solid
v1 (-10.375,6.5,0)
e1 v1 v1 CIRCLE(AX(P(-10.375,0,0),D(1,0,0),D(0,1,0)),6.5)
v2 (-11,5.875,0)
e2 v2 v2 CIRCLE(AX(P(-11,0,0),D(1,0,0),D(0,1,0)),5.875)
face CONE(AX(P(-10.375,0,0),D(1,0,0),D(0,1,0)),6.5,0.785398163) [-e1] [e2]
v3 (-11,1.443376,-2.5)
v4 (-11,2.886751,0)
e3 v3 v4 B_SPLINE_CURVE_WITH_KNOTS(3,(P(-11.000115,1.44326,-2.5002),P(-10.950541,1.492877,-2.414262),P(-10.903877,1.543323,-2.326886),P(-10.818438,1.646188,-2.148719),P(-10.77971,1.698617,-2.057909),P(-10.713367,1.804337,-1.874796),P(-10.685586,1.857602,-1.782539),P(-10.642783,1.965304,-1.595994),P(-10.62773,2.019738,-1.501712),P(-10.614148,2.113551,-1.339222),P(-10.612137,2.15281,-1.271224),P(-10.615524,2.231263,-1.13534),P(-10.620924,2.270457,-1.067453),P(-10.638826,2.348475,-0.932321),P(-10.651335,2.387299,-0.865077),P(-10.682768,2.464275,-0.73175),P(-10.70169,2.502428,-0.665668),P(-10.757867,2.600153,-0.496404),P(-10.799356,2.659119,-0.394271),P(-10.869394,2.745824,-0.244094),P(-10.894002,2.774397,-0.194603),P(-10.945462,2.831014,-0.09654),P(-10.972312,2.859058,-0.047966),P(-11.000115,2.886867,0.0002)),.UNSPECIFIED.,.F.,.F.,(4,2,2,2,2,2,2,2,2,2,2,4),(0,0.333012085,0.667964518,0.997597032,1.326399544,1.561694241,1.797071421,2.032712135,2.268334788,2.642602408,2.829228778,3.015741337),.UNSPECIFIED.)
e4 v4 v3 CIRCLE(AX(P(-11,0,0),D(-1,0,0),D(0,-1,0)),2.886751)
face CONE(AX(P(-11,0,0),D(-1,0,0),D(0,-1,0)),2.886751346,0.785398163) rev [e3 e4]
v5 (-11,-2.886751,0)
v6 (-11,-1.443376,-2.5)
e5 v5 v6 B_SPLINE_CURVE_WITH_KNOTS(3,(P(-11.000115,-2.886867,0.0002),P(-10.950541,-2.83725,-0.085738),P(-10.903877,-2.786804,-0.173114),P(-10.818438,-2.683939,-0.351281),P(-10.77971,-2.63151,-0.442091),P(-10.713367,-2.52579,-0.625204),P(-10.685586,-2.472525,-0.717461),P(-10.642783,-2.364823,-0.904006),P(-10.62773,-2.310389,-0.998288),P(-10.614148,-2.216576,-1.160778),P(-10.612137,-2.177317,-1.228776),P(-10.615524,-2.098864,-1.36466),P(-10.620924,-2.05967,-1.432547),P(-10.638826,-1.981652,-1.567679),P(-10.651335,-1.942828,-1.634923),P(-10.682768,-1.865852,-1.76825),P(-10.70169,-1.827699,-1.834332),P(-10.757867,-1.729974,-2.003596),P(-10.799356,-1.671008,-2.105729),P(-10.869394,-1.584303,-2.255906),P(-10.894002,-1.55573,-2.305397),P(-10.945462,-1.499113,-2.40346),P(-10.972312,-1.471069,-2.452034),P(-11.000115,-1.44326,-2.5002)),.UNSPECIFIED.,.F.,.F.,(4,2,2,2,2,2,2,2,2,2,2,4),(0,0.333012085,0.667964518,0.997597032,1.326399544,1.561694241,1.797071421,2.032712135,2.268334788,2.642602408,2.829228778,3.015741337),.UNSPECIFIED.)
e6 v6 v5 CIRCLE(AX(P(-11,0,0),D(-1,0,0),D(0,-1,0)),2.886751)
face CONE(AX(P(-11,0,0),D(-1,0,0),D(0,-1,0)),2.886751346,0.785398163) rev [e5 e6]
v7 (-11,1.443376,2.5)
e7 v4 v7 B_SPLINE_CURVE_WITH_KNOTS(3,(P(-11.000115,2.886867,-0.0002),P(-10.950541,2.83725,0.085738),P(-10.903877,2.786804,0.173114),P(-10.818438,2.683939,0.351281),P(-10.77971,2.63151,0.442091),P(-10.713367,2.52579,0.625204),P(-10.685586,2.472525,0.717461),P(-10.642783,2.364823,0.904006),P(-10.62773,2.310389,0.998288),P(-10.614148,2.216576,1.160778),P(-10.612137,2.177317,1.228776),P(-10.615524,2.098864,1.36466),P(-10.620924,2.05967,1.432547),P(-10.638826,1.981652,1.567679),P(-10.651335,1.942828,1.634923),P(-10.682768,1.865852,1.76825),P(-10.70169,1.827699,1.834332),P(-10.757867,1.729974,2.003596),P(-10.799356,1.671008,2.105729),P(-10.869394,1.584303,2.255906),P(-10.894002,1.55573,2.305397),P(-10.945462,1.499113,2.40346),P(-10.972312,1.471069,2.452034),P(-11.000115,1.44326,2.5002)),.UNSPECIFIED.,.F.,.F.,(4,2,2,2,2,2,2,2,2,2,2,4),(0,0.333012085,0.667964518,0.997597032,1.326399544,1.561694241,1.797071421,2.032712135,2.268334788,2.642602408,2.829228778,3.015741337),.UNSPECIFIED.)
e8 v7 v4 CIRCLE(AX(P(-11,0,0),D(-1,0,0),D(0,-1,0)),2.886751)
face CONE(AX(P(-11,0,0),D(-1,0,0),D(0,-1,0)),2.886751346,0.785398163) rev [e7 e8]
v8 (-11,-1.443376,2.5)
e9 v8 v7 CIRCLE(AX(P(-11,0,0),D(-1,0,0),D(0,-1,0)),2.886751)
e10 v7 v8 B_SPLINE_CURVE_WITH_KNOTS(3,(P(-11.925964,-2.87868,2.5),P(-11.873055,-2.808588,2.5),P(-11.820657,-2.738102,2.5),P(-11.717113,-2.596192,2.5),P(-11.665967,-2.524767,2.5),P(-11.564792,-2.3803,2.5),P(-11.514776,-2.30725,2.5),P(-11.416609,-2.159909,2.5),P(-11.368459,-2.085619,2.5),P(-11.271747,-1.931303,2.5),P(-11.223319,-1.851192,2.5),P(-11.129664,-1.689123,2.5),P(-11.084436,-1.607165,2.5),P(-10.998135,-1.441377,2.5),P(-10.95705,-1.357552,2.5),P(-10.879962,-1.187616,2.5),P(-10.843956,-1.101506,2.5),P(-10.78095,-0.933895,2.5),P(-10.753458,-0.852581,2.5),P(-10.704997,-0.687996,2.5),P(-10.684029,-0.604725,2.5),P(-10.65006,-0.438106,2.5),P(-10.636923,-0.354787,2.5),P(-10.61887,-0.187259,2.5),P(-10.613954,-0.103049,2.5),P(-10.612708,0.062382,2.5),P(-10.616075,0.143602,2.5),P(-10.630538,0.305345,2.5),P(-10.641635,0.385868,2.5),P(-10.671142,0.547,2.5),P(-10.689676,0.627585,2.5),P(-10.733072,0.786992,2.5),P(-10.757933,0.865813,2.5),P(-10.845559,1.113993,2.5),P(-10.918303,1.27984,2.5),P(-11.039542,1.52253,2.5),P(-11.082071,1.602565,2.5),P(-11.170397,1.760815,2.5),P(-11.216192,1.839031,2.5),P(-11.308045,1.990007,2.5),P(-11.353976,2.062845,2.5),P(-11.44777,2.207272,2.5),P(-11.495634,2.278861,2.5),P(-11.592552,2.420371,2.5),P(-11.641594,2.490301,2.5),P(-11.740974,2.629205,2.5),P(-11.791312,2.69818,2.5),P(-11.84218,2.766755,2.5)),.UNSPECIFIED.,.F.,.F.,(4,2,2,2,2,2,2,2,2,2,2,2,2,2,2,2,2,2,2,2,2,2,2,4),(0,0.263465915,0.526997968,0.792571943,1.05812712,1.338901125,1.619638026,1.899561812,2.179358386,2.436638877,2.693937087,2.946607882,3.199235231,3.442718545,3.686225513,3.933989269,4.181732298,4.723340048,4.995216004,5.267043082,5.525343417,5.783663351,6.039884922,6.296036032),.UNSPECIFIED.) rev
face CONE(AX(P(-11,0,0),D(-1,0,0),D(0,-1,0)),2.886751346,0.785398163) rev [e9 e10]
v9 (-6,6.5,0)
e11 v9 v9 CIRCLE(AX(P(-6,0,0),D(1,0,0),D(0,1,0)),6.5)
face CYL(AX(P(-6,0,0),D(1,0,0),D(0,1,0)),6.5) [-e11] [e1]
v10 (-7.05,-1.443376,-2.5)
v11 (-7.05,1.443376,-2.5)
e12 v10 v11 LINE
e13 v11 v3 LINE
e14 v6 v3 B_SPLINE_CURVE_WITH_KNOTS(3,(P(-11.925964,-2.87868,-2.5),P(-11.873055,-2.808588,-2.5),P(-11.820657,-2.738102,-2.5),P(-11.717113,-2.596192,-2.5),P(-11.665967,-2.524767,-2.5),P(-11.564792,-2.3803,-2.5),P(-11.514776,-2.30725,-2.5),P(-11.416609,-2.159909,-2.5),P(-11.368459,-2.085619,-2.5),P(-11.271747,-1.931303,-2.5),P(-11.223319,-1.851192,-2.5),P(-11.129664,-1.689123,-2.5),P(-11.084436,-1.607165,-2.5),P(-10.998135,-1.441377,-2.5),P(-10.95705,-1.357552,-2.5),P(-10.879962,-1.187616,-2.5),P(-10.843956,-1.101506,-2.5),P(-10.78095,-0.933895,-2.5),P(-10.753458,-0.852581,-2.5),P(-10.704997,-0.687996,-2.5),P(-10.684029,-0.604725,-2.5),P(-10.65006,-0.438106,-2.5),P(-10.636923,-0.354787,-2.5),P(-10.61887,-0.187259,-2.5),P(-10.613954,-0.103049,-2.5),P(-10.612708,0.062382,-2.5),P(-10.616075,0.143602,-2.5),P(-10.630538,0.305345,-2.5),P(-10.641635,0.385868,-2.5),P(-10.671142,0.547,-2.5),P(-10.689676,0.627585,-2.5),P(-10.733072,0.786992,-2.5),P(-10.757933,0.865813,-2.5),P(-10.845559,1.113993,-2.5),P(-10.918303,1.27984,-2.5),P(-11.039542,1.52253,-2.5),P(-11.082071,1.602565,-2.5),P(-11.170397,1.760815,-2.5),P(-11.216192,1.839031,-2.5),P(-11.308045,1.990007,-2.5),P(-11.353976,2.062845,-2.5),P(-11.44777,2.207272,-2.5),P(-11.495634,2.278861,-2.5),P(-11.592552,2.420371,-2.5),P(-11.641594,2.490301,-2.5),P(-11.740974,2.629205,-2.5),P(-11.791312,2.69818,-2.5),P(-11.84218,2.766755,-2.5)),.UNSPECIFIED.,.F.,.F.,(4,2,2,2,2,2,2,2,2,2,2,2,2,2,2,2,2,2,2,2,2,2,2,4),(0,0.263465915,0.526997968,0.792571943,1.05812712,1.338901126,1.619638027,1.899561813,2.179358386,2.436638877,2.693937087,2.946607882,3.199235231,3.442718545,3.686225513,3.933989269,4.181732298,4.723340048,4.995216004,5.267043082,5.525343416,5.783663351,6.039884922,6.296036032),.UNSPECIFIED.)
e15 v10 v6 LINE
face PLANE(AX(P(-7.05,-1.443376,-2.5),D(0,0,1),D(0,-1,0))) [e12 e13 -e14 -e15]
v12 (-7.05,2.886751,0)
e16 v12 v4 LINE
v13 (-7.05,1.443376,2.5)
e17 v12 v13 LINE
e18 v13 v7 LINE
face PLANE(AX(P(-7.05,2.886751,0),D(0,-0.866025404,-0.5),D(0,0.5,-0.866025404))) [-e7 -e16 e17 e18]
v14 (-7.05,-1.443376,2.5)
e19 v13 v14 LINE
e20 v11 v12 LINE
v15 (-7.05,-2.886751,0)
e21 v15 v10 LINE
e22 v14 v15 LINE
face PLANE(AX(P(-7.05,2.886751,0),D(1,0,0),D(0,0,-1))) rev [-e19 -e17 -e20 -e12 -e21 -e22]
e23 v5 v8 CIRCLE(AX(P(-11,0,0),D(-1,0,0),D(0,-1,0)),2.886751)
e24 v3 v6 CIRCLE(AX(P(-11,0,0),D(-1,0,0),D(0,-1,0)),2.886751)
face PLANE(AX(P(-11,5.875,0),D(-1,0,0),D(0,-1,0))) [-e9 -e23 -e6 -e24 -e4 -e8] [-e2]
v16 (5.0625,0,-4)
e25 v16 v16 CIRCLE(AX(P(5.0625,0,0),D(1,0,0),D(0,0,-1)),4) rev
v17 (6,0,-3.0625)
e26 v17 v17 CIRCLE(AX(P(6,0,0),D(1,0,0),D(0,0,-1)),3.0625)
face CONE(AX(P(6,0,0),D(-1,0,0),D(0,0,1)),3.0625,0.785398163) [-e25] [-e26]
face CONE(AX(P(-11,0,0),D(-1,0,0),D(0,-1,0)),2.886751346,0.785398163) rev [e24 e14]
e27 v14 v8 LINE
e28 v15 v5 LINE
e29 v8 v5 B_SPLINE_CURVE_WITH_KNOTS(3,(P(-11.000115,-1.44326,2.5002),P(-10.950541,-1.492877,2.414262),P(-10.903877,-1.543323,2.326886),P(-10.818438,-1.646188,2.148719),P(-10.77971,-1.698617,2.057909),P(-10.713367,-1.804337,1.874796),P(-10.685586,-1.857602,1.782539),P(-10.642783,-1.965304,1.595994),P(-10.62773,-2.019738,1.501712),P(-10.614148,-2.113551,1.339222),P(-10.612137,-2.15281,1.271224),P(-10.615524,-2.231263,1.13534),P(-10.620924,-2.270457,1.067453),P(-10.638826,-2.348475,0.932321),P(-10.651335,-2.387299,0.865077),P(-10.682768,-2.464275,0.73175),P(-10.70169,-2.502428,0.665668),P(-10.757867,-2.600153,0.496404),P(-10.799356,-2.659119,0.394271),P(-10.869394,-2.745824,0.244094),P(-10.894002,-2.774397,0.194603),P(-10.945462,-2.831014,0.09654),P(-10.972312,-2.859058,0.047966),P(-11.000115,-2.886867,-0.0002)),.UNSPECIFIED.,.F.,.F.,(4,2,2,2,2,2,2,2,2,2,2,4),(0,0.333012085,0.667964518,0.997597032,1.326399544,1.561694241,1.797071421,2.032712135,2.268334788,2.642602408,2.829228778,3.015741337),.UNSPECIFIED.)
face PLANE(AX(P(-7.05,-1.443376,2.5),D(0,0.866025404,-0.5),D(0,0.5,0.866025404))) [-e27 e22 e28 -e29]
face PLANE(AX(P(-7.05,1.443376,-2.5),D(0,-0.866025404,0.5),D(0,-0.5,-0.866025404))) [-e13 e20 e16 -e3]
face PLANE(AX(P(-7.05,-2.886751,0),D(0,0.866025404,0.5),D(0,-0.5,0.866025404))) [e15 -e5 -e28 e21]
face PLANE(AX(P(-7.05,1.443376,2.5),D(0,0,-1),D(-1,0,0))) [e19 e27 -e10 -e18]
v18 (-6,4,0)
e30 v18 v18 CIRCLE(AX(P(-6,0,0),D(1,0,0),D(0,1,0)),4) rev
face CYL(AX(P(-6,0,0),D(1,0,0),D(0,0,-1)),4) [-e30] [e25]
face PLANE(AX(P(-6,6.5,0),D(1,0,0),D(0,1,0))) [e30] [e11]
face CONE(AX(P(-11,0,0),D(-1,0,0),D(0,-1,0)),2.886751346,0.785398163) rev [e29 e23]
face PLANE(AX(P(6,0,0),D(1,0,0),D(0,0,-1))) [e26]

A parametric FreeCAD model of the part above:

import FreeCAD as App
import Part
import Sketcher
Q = App.Units.Quantity


def edges_at(feature, points):
    """Names of the edges that pass closest to the given points."""
    edges = feature.Shape.Edges
    near = lambda p: min(range(len(edges)), key=lambda i: edges[i].distToShape(Part.Vertex(*p))[0])
    return sorted({f"Edge{near(p) + 1}" for p in points})

doc = App.newDocument("Part")
body = doc.addObject("PartDesign::Body", "Body")

# Sketch on YZ plane
sketch1 = body.newObject("Sketcher::SketchObject", "Sketch")
sketch1.AttachmentSupport = (doc.getObject("YZ_Plane"), [""])
sketch1.MapMode = "FlatFace"
sketch1.AttachmentOffset = App.Placement(App.Vector(0, 0, 6), App.Rotation())
sketch1.addGeometry(Part.Circle(App.Vector(0, 0, 0), App.Vector(0, 0, 1), 4), False)
sketch1.addConstraint([
    Sketcher.Constraint("Coincident", 0, 3, -1, 1),
    Sketcher.Constraint("Diameter", 0, Q("8 mm")),
])
pad1 = body.newObject("PartDesign::Pad", "Pad")
pad1.Profile = sketch1
pad1.Length = 12
pad1.Reversed = True
doc.recompute()

chamfer = body.newObject("PartDesign::Chamfer", "Chamfer")
chamfer.Base = (pad1, edges_at(pad1, [(6, 0, 4)]))
chamfer.Size = 0.9375

# Sketch on XY plane
sketch2 = body.newObject("Sketcher::SketchObject", "Sketch001")
sketch2.AttachmentSupport = (doc.getObject("XY_Plane"), [""])
sketch2.MapMode = "FlatFace"
sketch2.addGeometry([
    Part.LineSegment(App.Vector(-10.4, 6.5, 0), App.Vector(-11, 5.9, 0)),  # 0
    Part.LineSegment(App.Vector(-11, 5.9, 0), App.Vector(-11, 0, 0)),  # 1
    Part.LineSegment(App.Vector(-11, 0, 0), App.Vector(-6, 0, 0)),  # 2
    Part.LineSegment(App.Vector(-6, 0, 0), App.Vector(-6, 6.5, 0)),  # 3
    Part.LineSegment(App.Vector(-6, 6.5, 0), App.Vector(-10.4, 6.5, 0)),  # 4
], False)
sketch2.addConstraint([
    Sketcher.Constraint("Coincident", 0, 2, 1, 1),
    Sketcher.Constraint("Coincident", 1, 2, 2, 1),
    Sketcher.Constraint("Coincident", 2, 2, 3, 1),
    Sketcher.Constraint("Coincident", 3, 2, 4, 1),
    Sketcher.Constraint("Coincident", 4, 2, 0, 1),
    Sketcher.Constraint("Vertical", 1),
    Sketcher.Constraint("Horizontal", 2),
    Sketcher.Constraint("Vertical", 3),
    Sketcher.Constraint("Horizontal", 4),
    Sketcher.Constraint("PointOnObject", 1, 2, -1),
    Sketcher.Constraint("DistanceX", 2, 1, 2, 2, Q("5 mm")),
    Sketcher.Constraint("Angle", 0, Q("-135 deg")),
    Sketcher.Constraint("DistanceY", 3, 1, 3, 2, Q("6.5 mm")),
    Sketcher.Constraint("DistanceX", 0, 2, -1, 1, Q("11 mm")),
    Sketcher.Constraint("DistanceX", 4, 2, 4, 1, Q("4.375 mm")),
])
revolution = body.newObject("PartDesign::Revolution", "Revolution")
revolution.Profile = sketch2
revolution.ReferenceAxis = (sketch2, ["H_Axis"])
revolution.Angle = 360

# Sketch on YZ plane
sketch3 = body.newObject("Sketcher::SketchObject", "Sketch002")
sketch3.AttachmentSupport = (doc.getObject("YZ_Plane"), [""])
sketch3.MapMode = "FlatFace"
sketch3.AttachmentOffset = App.Placement(App.Vector(0, 0, -11), App.Rotation())
sketch3.addGeometry([
    Part.LineSegment(App.Vector(2.9, 0, 0), App.Vector(1.4, 2.5, 0)),  # 0
    Part.LineSegment(App.Vector(1.4, 2.5, 0), App.Vector(-1.4, 2.5, 0)),  # 1
    Part.LineSegment(App.Vector(-1.4, 2.5, 0), App.Vector(-2.9, 0, 0)),  # 2
    Part.LineSegment(App.Vector(-2.9, 0, 0), App.Vector(-1.4, -2.5, 0)),  # 3
    Part.LineSegment(App.Vector(-1.4, -2.5, 0), App.Vector(1.4, -2.5, 0)),  # 4
    Part.LineSegment(App.Vector(1.4, -2.5, 0), App.Vector(2.9, 0, 0)),  # 5
], False)
sketch3.addConstraint([
    Sketcher.Constraint("Coincident", 0, 2, 1, 1),
    Sketcher.Constraint("Coincident", 1, 2, 2, 1),
    Sketcher.Constraint("Coincident", 2, 2, 3, 1),
    Sketcher.Constraint("Coincident", 3, 2, 4, 1),
    Sketcher.Constraint("Coincident", 4, 2, 5, 1),
    Sketcher.Constraint("Coincident", 5, 2, 0, 1),
    Sketcher.Constraint("Horizontal", 1),
    Sketcher.Constraint("Horizontal", 4),
    Sketcher.Constraint("Symmetric", 0, 2, 3, 2, -1, 1),
    Sketcher.Constraint("Symmetric", 2, 2, 5, 2, -1, 1),
    Sketcher.Constraint("PointOnObject", 2, 2, -1),
    Sketcher.Constraint("Parallel", 2, 5),
    Sketcher.Constraint("Vertical", 1, 2, 3, 2),
    Sketcher.Constraint("Angle", 0, Q("120 deg")),
    Sketcher.Constraint("DistanceY", 3, 2, 1, 2, Q("5 mm")),
    Sketcher.Constraint("DistanceX", 1, 2, 1, 1, Q("2.886751 mm")),
])
pocket1 = body.newObject("PartDesign::Pocket", "Pocket")
pocket1.Profile = sketch3
pocket1.Length = 3.95
pocket1.Reversed = True

# Sketch on XZ plane
sketch4 = body.newObject("Sketcher::SketchObject", "Sketch003")
sketch4.AttachmentSupport = (doc.getObject("XZ_Plane"), [""])
sketch4.MapMode = "FlatFace"
sketch4.addGeometry([
    Part.LineSegment(App.Vector(-11, 0, 0), App.Vector(-11, 2.9, 0)),
    Part.LineSegment(App.Vector(-11, 2.9, 0), App.Vector(-8.1, 0, 0)),
    Part.LineSegment(App.Vector(-8.1, 0, 0), App.Vector(-11, 0, 0)),
], False)
sketch4.addConstraint([
    Sketcher.Constraint("Coincident", 0, 2, 1, 1),
    Sketcher.Constraint("Coincident", 1, 2, 2, 1),
    Sketcher.Constraint("Coincident", 2, 2, 0, 1),
    Sketcher.Constraint("Vertical", 0),
    Sketcher.Constraint("Horizontal", 2),
    Sketcher.Constraint("PointOnObject", 1, 2, -1),
    Sketcher.Constraint("Equal", 2, 0),
    Sketcher.Constraint("DistanceX", 0, 2, -1, 1, Q("11 mm")),
    Sketcher.Constraint("DistanceX", 2, 2, 2, 1, Q("2.886751 mm")),
])
groove = body.newObject("PartDesign::Groove", "Groove")
groove.Profile = sketch4
groove.ReferenceAxis = (sketch4, ["H_Axis"])
groove.Angle = 360

doc.recompute()
